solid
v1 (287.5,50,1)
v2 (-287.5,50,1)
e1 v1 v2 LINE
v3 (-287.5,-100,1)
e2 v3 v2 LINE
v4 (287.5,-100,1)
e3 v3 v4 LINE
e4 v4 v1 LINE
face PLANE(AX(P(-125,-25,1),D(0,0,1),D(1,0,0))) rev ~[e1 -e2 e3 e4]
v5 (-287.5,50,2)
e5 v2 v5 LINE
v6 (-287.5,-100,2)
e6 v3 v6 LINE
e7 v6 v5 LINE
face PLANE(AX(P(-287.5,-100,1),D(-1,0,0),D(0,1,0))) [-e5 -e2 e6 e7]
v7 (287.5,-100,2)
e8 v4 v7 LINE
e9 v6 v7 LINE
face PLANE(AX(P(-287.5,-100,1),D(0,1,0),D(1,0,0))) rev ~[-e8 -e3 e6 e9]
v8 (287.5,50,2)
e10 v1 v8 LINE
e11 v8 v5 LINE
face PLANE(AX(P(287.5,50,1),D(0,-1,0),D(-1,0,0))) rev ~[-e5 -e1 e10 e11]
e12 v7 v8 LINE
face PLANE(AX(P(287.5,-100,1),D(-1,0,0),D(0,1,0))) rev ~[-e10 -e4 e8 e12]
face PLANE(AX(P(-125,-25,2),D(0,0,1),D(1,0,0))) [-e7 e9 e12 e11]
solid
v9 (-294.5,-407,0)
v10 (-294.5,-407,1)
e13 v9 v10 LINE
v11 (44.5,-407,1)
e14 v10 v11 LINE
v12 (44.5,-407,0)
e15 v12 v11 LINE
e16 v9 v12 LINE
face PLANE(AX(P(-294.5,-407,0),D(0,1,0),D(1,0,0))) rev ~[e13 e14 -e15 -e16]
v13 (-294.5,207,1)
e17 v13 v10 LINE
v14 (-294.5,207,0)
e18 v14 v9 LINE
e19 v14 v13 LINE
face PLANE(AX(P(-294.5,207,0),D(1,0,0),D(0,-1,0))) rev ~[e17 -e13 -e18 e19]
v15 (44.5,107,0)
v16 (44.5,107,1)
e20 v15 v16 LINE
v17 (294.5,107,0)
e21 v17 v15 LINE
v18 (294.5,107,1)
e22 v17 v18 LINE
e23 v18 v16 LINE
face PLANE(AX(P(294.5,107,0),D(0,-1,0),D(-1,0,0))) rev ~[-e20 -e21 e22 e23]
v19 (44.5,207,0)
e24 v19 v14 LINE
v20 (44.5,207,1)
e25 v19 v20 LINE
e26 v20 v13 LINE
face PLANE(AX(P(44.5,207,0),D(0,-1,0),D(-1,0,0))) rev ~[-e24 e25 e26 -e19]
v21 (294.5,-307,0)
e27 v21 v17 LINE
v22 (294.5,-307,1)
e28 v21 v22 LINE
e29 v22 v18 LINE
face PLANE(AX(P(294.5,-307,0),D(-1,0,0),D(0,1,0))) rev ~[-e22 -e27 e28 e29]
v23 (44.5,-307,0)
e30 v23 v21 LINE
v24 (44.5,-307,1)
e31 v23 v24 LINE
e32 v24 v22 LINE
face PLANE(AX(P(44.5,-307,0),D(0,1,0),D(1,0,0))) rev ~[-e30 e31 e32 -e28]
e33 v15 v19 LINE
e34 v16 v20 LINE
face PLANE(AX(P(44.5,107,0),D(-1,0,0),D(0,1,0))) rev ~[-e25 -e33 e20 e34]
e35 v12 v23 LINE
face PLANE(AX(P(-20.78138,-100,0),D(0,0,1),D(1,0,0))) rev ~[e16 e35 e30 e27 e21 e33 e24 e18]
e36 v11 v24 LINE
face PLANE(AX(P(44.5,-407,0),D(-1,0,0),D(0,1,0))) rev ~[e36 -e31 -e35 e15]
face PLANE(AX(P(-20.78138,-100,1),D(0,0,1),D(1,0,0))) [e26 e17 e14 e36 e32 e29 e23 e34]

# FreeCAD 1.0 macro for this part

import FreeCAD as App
import Part
import Sketcher

V = App.Vector

doc = App.newDocument("Part")
body = doc.addObject("PartDesign::Body", "Body")

# Sketch on XY plane
sketch1 = doc.addObject("Sketcher::SketchObject", "Sketch")
body.addObject(sketch1)
sketch1.AttachmentSupport = (doc.XY_Plane, [""])
sketch1.MapMode = "FlatFace"
sketch1.addGeometry([
    Part.LineSegment(V(-294, -407, 0), V(44, -407, 0)),  # 0
    Part.LineSegment(V(44, -407, 0), V(44, -307, 0)),  # 1
    Part.LineSegment(V(44, -307, 0), V(294, -307, 0)),  # 2
    Part.LineSegment(V(294, -307, 0), V(294, 107, 0)),  # 3
    Part.LineSegment(V(294, 107, 0), V(44, 107, 0)),  # 4
    Part.LineSegment(V(44, 107, 0), V(44, 207, 0)),  # 5
    Part.LineSegment(V(44, 207, 0), V(-294, 207, 0)),  # 6
    Part.LineSegment(V(-294, 207, 0), V(-294, -407, 0)),  # 7
], False)
sketch1.addConstraint([
    Sketcher.Constraint("Coincident", 0, 2, 1, 1),
    Sketcher.Constraint("Coincident", 1, 2, 2, 1),
    Sketcher.Constraint("Coincident", 2, 2, 3, 1),
    Sketcher.Constraint("Coincident", 3, 2, 4, 1),
    Sketcher.Constraint("Coincident", 4, 2, 5, 1),
    Sketcher.Constraint("Coincident", 5, 2, 6, 1),
    Sketcher.Constraint("Coincident", 6, 2, 7, 1),
    Sketcher.Constraint("Coincident", 7, 2, 0, 1),
    Sketcher.Constraint("Horizontal", 0),
    Sketcher.Constraint("Vertical", 1),
    Sketcher.Constraint("Horizontal", 2),
    Sketcher.Constraint("Vertical", 3),
    Sketcher.Constraint("Horizontal", 4),
    Sketcher.Constraint("Vertical", 5),
    Sketcher.Constraint("Horizontal", 6),
    Sketcher.Constraint("Vertical", 7),
    Sketcher.Constraint("Vertical", 1, 2, 4, 2),
    Sketcher.Constraint("Equal", 1, 5),
    Sketcher.Constraint("DistanceX", 0, 1, 0, 2, 339.0),
    Sketcher.Constraint("DistanceX", 2, 1, 2, 2, 250.0),
    Sketcher.Constraint("DistanceY", 1, 1, 1, 2, 100.0),
    Sketcher.Constraint("DistanceY", 3, 1, 3, 2, 414.0),
    Sketcher.Constraint("DistanceY", 0, 2, -1, 1, 407.0),
    Sketcher.Constraint("DistanceX", -1, 1, 0, 2, 44.5),
])
pad1 = doc.addObject("PartDesign::Pad", "Pad")
body.addObject(pad1)
pad1.Profile = sketch1
pad1.Length = 1
body2 = doc.addObject("PartDesign::Body", "Body001")

# Sketch on XY plane
sketch2 = doc.addObject("Sketcher::SketchObject", "Sketch001")
body2.addObject(sketch2)
sketch2.AttachmentSupport = (doc.getObject("XY_Plane001"), [""])
sketch2.MapMode = "FlatFace"
sketch2.AttachmentOffset = App.Placement(V(0, 0, 1), App.Rotation())
sketch2.addGeometry([
    Part.LineSegment(V(-288, 50, 0), V(-288, -100, 0)),
    Part.LineSegment(V(-288, -100, 0), V(288, -100, 0)),
    Part.LineSegment(V(288, -100, 0), V(288, 50, 0)),
    Part.LineSegment(V(288, 50, 0), V(-288, 50, 0)),
], False)
sketch2.addConstraint([
    Sketcher.Constraint("Coincident", 0, 2, 1, 1),
    Sketcher.Constraint("Coincident", 1, 2, 2, 1),
    Sketcher.Constraint("Coincident", 2, 2, 3, 1),
    Sketcher.Constraint("Coincident", 3, 2, 0, 1),
    Sketcher.Constraint("Vertical", 0),
    Sketcher.Constraint("Horizontal", 1),
    Sketcher.Constraint("Vertical", 2),
    Sketcher.Constraint("Horizontal", 3),
    Sketcher.Constraint("DistanceX", 1, 1, 1, 2, 575.0),
    Sketcher.Constraint("DistanceY", 0, 2, 0, 1, 150.0),
    Sketcher.Constraint("DistanceY", 0, 2, -1, 1, 100.0),
    Sketcher.Constraint("DistanceX", 0, 2, -1, 1, 287.5),
])
pad2 = doc.addObject("PartDesign::Pad", "Pad001")
body2.addObject(pad2)
pad2.Profile = sketch2
pad2.Length = 1

doc.recompute()
